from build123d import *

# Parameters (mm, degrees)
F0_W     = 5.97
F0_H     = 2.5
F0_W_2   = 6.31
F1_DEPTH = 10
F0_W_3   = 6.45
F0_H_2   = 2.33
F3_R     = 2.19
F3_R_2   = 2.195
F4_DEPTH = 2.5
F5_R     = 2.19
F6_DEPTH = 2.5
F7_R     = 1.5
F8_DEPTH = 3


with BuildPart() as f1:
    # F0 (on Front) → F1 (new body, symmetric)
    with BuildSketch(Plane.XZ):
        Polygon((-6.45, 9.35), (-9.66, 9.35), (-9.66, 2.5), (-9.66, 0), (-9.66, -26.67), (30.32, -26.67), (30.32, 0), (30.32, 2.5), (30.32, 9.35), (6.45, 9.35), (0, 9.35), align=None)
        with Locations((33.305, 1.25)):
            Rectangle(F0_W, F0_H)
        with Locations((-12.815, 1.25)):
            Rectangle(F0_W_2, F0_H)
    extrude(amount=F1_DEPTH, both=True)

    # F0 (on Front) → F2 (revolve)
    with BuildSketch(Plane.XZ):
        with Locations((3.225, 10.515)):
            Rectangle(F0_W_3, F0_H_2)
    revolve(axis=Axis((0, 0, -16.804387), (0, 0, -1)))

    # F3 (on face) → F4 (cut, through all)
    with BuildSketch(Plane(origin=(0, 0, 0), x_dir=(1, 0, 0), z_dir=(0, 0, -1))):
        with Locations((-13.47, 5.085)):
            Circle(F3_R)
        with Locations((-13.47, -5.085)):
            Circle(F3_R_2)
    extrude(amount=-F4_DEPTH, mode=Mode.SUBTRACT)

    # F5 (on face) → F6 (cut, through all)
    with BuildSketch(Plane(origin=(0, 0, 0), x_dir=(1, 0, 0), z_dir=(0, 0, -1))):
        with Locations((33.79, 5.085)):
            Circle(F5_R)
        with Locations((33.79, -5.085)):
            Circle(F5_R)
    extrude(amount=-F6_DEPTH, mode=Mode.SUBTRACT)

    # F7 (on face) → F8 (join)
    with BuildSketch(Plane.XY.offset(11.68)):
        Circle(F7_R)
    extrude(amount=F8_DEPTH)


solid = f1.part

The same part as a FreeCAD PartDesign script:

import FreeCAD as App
import Part
import Sketcher
from FreeCAD import Vector

doc = App.newDocument("Part")
body = doc.addObject("PartDesign::Body", "Body")

sketch1 = body.newObject("Sketcher::SketchObject", "Sketch")
sketch1.AttachmentSupport = (doc.getObject("XZ_Plane"), [""])
sketch1.MapMode = "FlatFace"
sketch1.addGeometry([
    Part.LineSegment(Vector(-9.66, 9.35, 0), Vector(-9.66, 2.5, 0)),
    Part.LineSegment(Vector(-9.66, 2.5, 0), Vector(-15.97, 2.5, 0)),
    Part.LineSegment(Vector(-15.97, 2.5, 0), Vector(-15.97, 0, 0)),
    Part.LineSegment(Vector(-15.97, 0, 0), Vector(-9.66, 0, 0)),
    Part.LineSegment(Vector(-9.66, 0, 0), Vector(-9.66, -26.67, 0)),
    Part.LineSegment(Vector(-9.66, -26.67, 0), Vector(30.32, -26.67, 0)),
    Part.LineSegment(Vector(30.32, -26.67, 0), Vector(30.32, 0, 0)),
    Part.LineSegment(Vector(30.32, 0, 0), Vector(36.29, 0, 0)),
    Part.LineSegment(Vector(36.29, 0, 0), Vector(36.29, 2.5, 0)),
    Part.LineSegment(Vector(36.29, 2.5, 0), Vector(30.32, 2.5, 0)),
    Part.LineSegment(Vector(30.32, 2.5, 0), Vector(30.32, 9.35, 0)),
    Part.LineSegment(Vector(30.32, 9.35, 0), Vector(-9.66, 9.35, 0)),
], False)
sketch1.addConstraint([
    Sketcher.Constraint("Coincident", 0, 2, 1, 1),
    Sketcher.Constraint("Coincident", 1, 2, 2, 1),
    Sketcher.Constraint("Coincident", 2, 2, 3, 1),
    Sketcher.Constraint("Coincident", 3, 2, 4, 1),
    Sketcher.Constraint("Coincident", 4, 2, 5, 1),
    Sketcher.Constraint("Coincident", 5, 2, 6, 1),
    Sketcher.Constraint("Coincident", 6, 2, 7, 1),
    Sketcher.Constraint("Coincident", 7, 2, 8, 1),
    Sketcher.Constraint("Coincident", 8, 2, 9, 1),
    Sketcher.Constraint("Coincident", 9, 2, 10, 1),
    Sketcher.Constraint("Coincident", 10, 2, 11, 1),
    Sketcher.Constraint("Coincident", 11, 2, 0, 1),
    Sketcher.Constraint("Vertical", 0),
    Sketcher.Constraint("Horizontal", 1),
    Sketcher.Constraint("Vertical", 2),
    Sketcher.Constraint("Horizontal", 3),
    Sketcher.Constraint("Vertical", 4),
    Sketcher.Constraint("Horizontal", 5),
    Sketcher.Constraint("Vertical", 6),
    Sketcher.Constraint("Horizontal", 7),
    Sketcher.Constraint("Vertical", 8),
    Sketcher.Constraint("Horizontal", 9),
    Sketcher.Constraint("Vertical", 10),
    Sketcher.Constraint("Horizontal", 11),
    Sketcher.Constraint("PointOnObject", 2, 2, -1),
    Sketcher.Constraint("PointOnObject", 6, 2, -1),
    Sketcher.Constraint("Horizontal", 1, 2, 8, 2),
    Sketcher.Constraint("Vertical", 0, 2, 3, 2),
    Sketcher.Constraint("Vertical", 6, 2, 9, 2),
    Sketcher.Constraint("DistanceY", 2, 2, 2, 1, 2.5),
    Sketcher.Constraint("DistanceX", 1, 2, 1, 1, 6.31),
    Sketcher.Constraint("DistanceX", 5, 1, 5, 2, 39.98),
    Sketcher.Constraint("DistanceX", 7, 1, 7, 2, 5.97),
    Sketcher.Constraint("DistanceY", 0, 2, 0, 1, 6.85),
    Sketcher.Constraint("DistanceY", 4, 2, 4, 1, 26.67),
    Sketcher.Constraint("DistanceX", 0, 2, -1, 1, 9.66),
])
pad1 = body.newObject("PartDesign::Pad", "Pad")
pad1.Profile = sketch1
pad1.Length = 20
pad1.Midplane = True

sketch2 = body.newObject("Sketcher::SketchObject", "Sketch001")
sketch2.AttachmentSupport = (doc.getObject("XZ_Plane"), [""])
sketch2.MapMode = "FlatFace"
sketch2.addGeometry([
    Part.LineSegment(Vector(0, 11.68, 0), Vector(0, 9.35, 0)),
    Part.LineSegment(Vector(0, 9.35, 0), Vector(6.45, 9.35, 0)),
    Part.LineSegment(Vector(6.45, 9.35, 0), Vector(6.45, 11.68, 0)),
    Part.LineSegment(Vector(6.45, 11.68, 0), Vector(0, 11.68, 0)),
], False)
sketch2.addConstraint([
    Sketcher.Constraint("Coincident", 0, 2, 1, 1),
    Sketcher.Constraint("Coincident", 1, 2, 2, 1),
    Sketcher.Constraint("Coincident", 2, 2, 3, 1),
    Sketcher.Constraint("Coincident", 3, 2, 0, 1),
    Sketcher.Constraint("Vertical", 0),
    Sketcher.Constraint("Horizontal", 1),
    Sketcher.Constraint("Vertical", 2),
    Sketcher.Constraint("Horizontal", 3),
    Sketcher.Constraint("PointOnObject", 0, 2, -2),
    Sketcher.Constraint("DistanceX", 1, 1, 1, 2, 6.45),
    Sketcher.Constraint("DistanceY", 0, 2, 0, 1, 2.33),
    Sketcher.Constraint("DistanceY", -1, 1, 0, 2, 9.35),
])
revolution = body.newObject("PartDesign::Revolution", "Revolution")
revolution.Profile = sketch2
revolution.ReferenceAxis = (sketch2, ["V_Axis"])
revolution.Angle = 360

sketch3 = body.newObject("Sketcher::SketchObject", "Sketch002")
sketch3.AttachmentSupport = (doc.getObject("XY_Plane"), [""])
sketch3.MapMode = "FlatFace"
sketch3.addGeometry([
    Part.Circle(Vector(-13.47, -5.085, 0), Vector(0, 0, 1), 2.19),
    Part.Circle(Vector(-13.47, 5.085, 0), Vector(0, 0, 1), 2.195),
], False)
sketch3.addConstraint([
    Sketcher.Constraint("Symmetric", 0, 3, 1, 3, -1),
    Sketcher.Constraint("Diameter", 0, 4.38),
    Sketcher.Constraint("Diameter", 1, 4.39),
    Sketcher.Constraint("DistanceX", 0, 3, -1, 1, 13.47),
    Sketcher.Constraint("DistanceY", 0, 3, 1, 3, 10.17),
])
pocket1 = body.newObject("PartDesign::Pocket", "Pocket")
pocket1.Profile = sketch3
pocket1.Type = "ThroughAll"
pocket1.Reversed = True

sketch4 = body.newObject("Sketcher::SketchObject", "Sketch003")
sketch4.AttachmentSupport = (doc.getObject("XY_Plane"), [""])
sketch4.MapMode = "FlatFace"
sketch4.addGeometry([
    Part.Circle(Vector(33.79, -5.085, 0), Vector(0, 0, 1), 2.19),
    Part.Circle(Vector(33.79, 5.085, 0), Vector(0, 0, 1), 2.19),
], False)
sketch4.addConstraint([
    Sketcher.Constraint("Equal", 0, 1),
    Sketcher.Constraint("Symmetric", 0, 3, 1, 3, -1),
    Sketcher.Constraint("Diameter", 0, 4.38),
    Sketcher.Constraint("DistanceX", -1, 1, 0, 3, 33.79),
    Sketcher.Constraint("DistanceY", 0, 3, 1, 3, 10.17),
])
pocket2 = body.newObject("PartDesign::Pocket", "Pocket001")
pocket2.Profile = sketch4
pocket2.Type = "ThroughAll"
pocket2.Reversed = True

sketch5 = body.newObject("Sketcher::SketchObject", "Sketch004")
sketch5.AttachmentSupport = (doc.getObject("XY_Plane"), [""])
sketch5.MapMode = "FlatFace"
sketch5.AttachmentOffset = App.Placement(Vector(0, 0, 11.68), App.Rotation())
sketch5.addGeometry(Part.Circle(Vector(0, 0, 0), Vector(0, 0, 1), 1.5), False)
sketch5.addConstraint([
    Sketcher.Constraint("Coincident", 0, 3, -1, 1),
    Sketcher.Constraint("Diameter", 0, 3.0),
])
pad2 = body.newObject("PartDesign::Pad", "Pad001")
pad2.Profile = sketch5
pad2.Length = 3

doc.recompute()
